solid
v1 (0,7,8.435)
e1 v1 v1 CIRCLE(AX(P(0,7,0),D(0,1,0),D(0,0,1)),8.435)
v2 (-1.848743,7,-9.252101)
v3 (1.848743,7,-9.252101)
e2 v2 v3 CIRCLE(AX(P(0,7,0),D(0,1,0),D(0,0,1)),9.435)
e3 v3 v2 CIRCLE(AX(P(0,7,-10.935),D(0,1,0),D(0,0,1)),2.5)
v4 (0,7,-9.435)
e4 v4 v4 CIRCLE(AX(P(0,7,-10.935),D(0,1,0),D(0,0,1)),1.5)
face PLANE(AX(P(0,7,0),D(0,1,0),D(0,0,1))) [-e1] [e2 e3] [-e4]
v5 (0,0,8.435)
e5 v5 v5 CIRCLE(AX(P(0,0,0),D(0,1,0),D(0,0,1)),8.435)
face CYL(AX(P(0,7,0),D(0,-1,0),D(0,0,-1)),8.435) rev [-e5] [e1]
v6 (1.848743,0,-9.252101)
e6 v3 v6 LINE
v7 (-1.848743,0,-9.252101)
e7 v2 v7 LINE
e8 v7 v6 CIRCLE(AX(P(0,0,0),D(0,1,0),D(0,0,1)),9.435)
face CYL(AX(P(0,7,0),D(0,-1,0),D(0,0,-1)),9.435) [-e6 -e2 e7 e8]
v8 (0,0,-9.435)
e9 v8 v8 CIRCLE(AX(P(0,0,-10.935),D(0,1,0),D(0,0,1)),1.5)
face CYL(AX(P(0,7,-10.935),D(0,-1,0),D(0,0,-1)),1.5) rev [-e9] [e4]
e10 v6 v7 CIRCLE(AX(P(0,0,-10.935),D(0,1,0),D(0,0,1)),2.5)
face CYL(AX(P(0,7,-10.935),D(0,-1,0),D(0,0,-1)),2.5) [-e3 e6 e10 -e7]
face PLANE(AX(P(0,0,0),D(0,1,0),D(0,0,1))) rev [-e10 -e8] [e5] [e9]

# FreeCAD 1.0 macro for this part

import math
import FreeCAD as App
import Part
import Sketcher

doc = App.newDocument("Part")
body = doc.addObject("PartDesign::Body", "Body")

sketch1 = doc.addObject("Sketcher::SketchObject", "Sketch")
body.addObject(sketch1)
sketch1.AttachmentSupport = (doc.XZ_Plane, [""])
sketch1.MapMode = "FlatFace"
sketch1.addGeometry([
    Part.ArcOfCircle(Part.Circle(App.Vector(0, 0, 0), App.Vector(0, 0, 1), 9.435), math.radians(-78.700054), math.radians(258.700054)),
    Part.ArcOfCircle(Part.Circle(App.Vector(0, -10.935, 0), App.Vector(0, 0, 1), 2.5), math.radians(137.688606), math.radians(402.311394)),
    Part.Circle(App.Vector(0, 0, 0), App.Vector(0, 0, 1), 8.435),
    Part.Circle(App.Vector(0, -10.935, 0), App.Vector(0, 0, 1), 1.5),
], False)
sketch1.addConstraint([
    Sketcher.Constraint("Coincident", 0, 1, 1, 2),
    Sketcher.Constraint("Coincident", 1, 1, 0, 2),
    Sketcher.Constraint("Coincident", 0, 3, -1, 1),
    Sketcher.Constraint("Coincident", 2, 3, -1, 1),
    Sketcher.Constraint("Coincident", 3, 3, 1, 3),
    Sketcher.Constraint("PointOnObject", 1, 3, -2),
    Sketcher.Constraint("Diameter", 3, 3.0),
    Sketcher.Constraint("Radius", 1, 2.5),
    Sketcher.Constraint("Diameter", 2, 16.87),
    Sketcher.Constraint("Radius", 0, 9.435),
    Sketcher.Constraint("DistanceY", 1, 3, -1, 1, 10.935),
])
pad1 = doc.addObject("PartDesign::Pad", "Pad")
body.addObject(pad1)
pad1.Profile = sketch1
pad1.Length = 7
pad1.Reversed = True

doc.recompute()
